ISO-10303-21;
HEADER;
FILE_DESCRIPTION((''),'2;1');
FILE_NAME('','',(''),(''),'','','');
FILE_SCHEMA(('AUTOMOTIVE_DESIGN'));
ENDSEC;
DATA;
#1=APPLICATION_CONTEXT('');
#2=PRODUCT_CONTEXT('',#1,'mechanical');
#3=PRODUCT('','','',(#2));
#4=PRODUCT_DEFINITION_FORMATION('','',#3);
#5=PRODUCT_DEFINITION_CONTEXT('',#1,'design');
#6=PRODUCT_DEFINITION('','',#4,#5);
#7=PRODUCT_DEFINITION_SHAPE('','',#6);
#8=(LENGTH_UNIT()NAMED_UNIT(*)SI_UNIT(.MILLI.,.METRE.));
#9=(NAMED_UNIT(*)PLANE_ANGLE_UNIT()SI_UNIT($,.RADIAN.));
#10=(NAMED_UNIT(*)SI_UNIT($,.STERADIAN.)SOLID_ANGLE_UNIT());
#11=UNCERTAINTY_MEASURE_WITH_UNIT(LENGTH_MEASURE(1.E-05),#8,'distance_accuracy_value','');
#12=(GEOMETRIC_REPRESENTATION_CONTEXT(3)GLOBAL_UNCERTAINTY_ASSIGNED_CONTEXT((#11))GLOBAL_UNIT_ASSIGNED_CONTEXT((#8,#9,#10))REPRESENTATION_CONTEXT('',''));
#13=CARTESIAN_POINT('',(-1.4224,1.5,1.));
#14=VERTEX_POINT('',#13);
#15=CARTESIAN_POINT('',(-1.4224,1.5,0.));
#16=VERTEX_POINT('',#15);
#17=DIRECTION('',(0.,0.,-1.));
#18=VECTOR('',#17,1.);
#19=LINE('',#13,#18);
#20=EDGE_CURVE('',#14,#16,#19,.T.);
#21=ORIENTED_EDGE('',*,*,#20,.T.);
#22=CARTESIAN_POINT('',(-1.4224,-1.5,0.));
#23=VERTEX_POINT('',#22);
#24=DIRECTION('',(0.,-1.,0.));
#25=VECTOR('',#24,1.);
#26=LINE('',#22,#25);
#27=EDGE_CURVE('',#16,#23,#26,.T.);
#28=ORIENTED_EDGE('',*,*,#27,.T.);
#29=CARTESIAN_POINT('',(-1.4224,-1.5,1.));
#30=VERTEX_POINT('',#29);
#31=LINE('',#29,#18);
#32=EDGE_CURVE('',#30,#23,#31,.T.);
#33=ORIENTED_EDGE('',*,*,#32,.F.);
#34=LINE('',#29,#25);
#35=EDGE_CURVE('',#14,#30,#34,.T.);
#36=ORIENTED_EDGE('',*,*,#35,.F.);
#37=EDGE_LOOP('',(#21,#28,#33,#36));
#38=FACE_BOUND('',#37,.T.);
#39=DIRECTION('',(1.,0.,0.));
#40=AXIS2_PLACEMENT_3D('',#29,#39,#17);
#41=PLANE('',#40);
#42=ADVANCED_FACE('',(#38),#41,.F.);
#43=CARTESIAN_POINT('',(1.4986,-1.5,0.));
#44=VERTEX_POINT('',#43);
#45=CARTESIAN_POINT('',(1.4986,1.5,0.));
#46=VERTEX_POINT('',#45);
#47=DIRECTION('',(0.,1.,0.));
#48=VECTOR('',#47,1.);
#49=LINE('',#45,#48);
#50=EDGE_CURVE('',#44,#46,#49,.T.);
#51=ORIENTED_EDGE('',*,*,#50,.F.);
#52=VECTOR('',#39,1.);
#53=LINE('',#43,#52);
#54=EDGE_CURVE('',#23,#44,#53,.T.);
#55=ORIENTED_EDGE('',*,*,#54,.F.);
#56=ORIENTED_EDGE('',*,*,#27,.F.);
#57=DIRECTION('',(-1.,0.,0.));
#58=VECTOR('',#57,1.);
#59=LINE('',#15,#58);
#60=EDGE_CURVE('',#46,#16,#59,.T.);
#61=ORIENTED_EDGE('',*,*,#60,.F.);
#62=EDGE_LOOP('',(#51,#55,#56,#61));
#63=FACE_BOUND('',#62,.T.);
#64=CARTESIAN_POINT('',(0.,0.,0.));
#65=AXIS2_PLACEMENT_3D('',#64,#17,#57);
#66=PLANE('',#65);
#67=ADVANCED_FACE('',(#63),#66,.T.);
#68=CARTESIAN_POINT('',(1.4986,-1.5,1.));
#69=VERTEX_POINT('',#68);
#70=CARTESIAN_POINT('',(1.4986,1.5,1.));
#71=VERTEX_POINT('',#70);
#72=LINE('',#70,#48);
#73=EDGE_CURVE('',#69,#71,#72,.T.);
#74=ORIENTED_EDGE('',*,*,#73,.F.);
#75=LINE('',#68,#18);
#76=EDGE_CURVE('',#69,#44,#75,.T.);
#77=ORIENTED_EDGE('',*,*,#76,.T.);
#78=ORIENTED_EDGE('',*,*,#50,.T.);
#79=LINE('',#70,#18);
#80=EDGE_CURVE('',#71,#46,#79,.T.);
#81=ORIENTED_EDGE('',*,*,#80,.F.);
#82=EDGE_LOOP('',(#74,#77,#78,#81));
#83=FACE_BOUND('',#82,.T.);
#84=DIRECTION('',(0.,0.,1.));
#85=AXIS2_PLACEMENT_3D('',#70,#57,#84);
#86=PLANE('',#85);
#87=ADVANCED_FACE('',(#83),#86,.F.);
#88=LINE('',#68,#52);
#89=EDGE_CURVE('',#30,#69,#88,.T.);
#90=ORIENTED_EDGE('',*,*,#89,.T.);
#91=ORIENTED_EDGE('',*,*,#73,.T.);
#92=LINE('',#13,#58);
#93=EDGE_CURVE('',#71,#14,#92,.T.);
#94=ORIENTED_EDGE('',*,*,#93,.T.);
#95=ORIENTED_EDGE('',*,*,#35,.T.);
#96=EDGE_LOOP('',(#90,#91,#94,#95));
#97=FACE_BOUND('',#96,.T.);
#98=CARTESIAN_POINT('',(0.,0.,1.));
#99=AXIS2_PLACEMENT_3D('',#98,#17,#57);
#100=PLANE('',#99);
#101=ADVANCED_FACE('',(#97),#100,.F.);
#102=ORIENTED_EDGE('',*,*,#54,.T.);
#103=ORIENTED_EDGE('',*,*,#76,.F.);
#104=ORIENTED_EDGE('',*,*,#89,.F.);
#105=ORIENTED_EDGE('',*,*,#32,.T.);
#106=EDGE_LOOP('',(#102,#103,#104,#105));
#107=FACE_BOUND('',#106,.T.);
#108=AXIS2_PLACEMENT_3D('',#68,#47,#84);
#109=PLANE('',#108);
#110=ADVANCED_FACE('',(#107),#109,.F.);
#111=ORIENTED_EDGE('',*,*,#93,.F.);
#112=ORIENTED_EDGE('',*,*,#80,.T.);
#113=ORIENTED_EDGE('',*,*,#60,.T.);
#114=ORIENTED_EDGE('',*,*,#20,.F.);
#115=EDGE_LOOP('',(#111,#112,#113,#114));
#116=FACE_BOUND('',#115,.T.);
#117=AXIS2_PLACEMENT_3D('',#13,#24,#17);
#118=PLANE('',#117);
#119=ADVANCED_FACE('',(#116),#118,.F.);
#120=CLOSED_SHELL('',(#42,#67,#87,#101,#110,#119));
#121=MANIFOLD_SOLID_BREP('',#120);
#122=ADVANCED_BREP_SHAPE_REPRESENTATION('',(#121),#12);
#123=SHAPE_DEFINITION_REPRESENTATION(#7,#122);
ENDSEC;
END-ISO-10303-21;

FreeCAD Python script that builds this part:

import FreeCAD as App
import Part
import Sketcher

doc = App.newDocument("Part")
params = doc.addObject("Spreadsheet::Sheet", "Params")
for row, (alias, value) in enumerate([
    ("sketch1_height", "3 mm"),
    ("pad1_length", "1 mm"),
], start=1):
    params.set(f"A{row}", alias)
    params.set(f"B{row}", "=" + value)
    params.setAlias(f"B{row}", alias)

body = doc.addObject("PartDesign::Body", "Body")

# Sketch on XY plane
sketch1 = body.newObject("Sketcher::SketchObject", "Sketch")
sketch1.AttachmentSupport = (doc.getObject("XY_Plane"), [""])
sketch1.MapMode = "FlatFace"
sketch1.addGeometry(Part.LineSegment(App.Vector(-1.4, 1.5, 0), App.Vector(-1.4, -1.5, 0)), False)
sketch1.addGeometry(Part.LineSegment(App.Vector(-1.4, -1.5, 0), App.Vector(1.5, -1.5, 0)), False)
sketch1.addGeometry(Part.LineSegment(App.Vector(1.5, -1.5, 0), App.Vector(1.5, 1.5, 0)), False)
sketch1.addGeometry(Part.LineSegment(App.Vector(1.5, 1.5, 0), App.Vector(-1.4, 1.5, 0)), False)
sketch1.addConstraint(Sketcher.Constraint("Coincident", 0, 2, 1, 1))
sketch1.addConstraint(Sketcher.Constraint("Coincident", 1, 2, 2, 1))
sketch1.addConstraint(Sketcher.Constraint("Coincident", 2, 2, 3, 1))
sketch1.addConstraint(Sketcher.Constraint("Coincident", 3, 2, 0, 1))
sketch1.addConstraint(Sketcher.Constraint("Vertical", 0))
sketch1.addConstraint(Sketcher.Constraint("Horizontal", 1))
sketch1.addConstraint(Sketcher.Constraint("Vertical", 2))
sketch1.addConstraint(Sketcher.Constraint("Horizontal", 3))
sketch1.addConstraint(Sketcher.Constraint("DistanceY", 0, 2, 0, 1, 3.0))
sketch1.addConstraint(Sketcher.Constraint("DistanceY", 0, 2, -1, 1, 1.5))
sketch1.addConstraint(Sketcher.Constraint("DistanceX", 1, 1, 1, 2, 2.921))
sketch1.addConstraint(Sketcher.Constraint("DistanceX", 0, 2, -1, 1, 1.4224))
sketch1.setExpression("Constraints[8]", "Params.sketch1_height")
pad1 = body.newObject("PartDesign::Pad", "Pad")
pad1.Profile = sketch1
pad1.setExpression("Length", "Params.pad1_length")

doc.recompute()
